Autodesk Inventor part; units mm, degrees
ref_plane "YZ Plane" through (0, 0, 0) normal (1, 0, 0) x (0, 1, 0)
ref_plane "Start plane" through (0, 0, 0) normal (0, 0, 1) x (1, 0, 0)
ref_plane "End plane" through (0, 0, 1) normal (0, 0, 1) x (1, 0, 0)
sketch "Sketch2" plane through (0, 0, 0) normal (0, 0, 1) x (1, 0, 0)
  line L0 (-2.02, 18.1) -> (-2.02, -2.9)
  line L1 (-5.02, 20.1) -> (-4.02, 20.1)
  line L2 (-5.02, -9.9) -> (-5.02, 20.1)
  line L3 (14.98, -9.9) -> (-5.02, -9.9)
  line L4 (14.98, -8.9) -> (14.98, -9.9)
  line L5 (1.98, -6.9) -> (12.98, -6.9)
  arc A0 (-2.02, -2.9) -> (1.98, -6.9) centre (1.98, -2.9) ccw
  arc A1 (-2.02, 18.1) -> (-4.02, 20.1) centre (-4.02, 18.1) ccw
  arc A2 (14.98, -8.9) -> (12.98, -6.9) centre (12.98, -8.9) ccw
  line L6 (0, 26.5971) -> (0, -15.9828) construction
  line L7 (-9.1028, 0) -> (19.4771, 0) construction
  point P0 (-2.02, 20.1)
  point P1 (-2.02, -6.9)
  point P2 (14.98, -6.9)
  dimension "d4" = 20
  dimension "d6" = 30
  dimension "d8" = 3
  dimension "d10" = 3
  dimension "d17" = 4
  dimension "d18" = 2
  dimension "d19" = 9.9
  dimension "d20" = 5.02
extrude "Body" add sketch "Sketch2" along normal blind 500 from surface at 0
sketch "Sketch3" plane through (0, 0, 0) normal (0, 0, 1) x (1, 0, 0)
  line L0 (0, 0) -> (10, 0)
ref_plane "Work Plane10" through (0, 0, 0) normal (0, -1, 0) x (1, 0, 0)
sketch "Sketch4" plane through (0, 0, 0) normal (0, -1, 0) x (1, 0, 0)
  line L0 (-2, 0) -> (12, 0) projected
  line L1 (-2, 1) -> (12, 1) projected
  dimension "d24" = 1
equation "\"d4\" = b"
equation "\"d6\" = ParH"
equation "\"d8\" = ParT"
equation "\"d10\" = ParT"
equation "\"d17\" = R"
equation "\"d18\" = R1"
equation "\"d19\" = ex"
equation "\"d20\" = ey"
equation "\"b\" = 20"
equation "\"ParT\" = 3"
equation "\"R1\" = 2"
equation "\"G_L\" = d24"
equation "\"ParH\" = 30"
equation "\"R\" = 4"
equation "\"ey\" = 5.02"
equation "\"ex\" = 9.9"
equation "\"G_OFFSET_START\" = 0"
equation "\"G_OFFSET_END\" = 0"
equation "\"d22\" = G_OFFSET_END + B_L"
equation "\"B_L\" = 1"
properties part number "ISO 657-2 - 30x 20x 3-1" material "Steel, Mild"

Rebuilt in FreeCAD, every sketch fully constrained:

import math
import FreeCAD as App
import Part
import Sketcher

V = App.Vector

doc = App.newDocument("Part")
body = doc.addObject("PartDesign::Body", "Body")

# Sketch on XY plane
sketch1 = body.newObject("Sketcher::SketchObject", "Sketch")
sketch1.AttachmentSupport = (doc.getObject("XY_Plane"), [""])
sketch1.MapMode = "FlatFace"
sketch1.addGeometry([
    Part.LineSegment(V(-2, -2.9, 0), V(-2, 18.1, 0)),  # 0
    Part.ArcOfCircle(Part.Circle(V(-4, 18.1, 0), V(0, 0, 1), 2), math.radians(0), math.radians(90)),  # 1
    Part.LineSegment(V(-4, 20.1, 0), V(-5, 20.1, 0)),  # 2
    Part.LineSegment(V(-5, 20.1, 0), V(-5, -9.9, 0)),  # 3
    Part.LineSegment(V(-5, -9.9, 0), V(15, -9.9, 0)),  # 4
    Part.LineSegment(V(15, -9.9, 0), V(15, -8.9, 0)),  # 5
    Part.ArcOfCircle(Part.Circle(V(13, -8.9, 0), V(0, 0, 1), 2), math.radians(0), math.radians(90)),  # 6
    Part.LineSegment(V(13, -6.9, 0), V(2, -6.9, 0)),  # 7
    Part.ArcOfCircle(Part.Circle(V(2, -2.9, 0), V(0, 0, 1), 4), math.radians(180), math.radians(270)),  # 8
], False)
sketch1.addConstraint([
    Sketcher.Constraint("Tangent", 0, 2, 1, 1),
    Sketcher.Constraint("Tangent", 1, 2, 2, 1),
    Sketcher.Constraint("Coincident", 2, 2, 3, 1),
    Sketcher.Constraint("Coincident", 3, 2, 4, 1),
    Sketcher.Constraint("Coincident", 4, 2, 5, 1),
    Sketcher.Constraint("Tangent", 5, 2, 6, 1),
    Sketcher.Constraint("Tangent", 6, 2, 7, 1),
    Sketcher.Constraint("Tangent", 7, 2, 8, 2),
    Sketcher.Constraint("Tangent", 8, 1, 0, 1),
    Sketcher.Constraint("Vertical", 0),
    Sketcher.Constraint("Horizontal", 2),
    Sketcher.Constraint("Vertical", 3),
    Sketcher.Constraint("Horizontal", 4),
    Sketcher.Constraint("Vertical", 5),
    Sketcher.Constraint("Horizontal", 7),
    Sketcher.Constraint("Equal", 1, 6),
    Sketcher.Constraint("Equal", 2, 5),
    Sketcher.Constraint("Radius", 1, 2.0),
    Sketcher.Constraint("Radius", 8, 4.0),
    Sketcher.Constraint("DistanceX", 4, 1, 4, 2, 20.0),
    Sketcher.Constraint("DistanceY", 3, 2, 3, 1, 30.0),
    Sketcher.Constraint("DistanceX", 2, 2, 0, 2, 3.0),
    Sketcher.Constraint("DistanceY", 3, 2, -1, 1, 9.9),
    Sketcher.Constraint("DistanceX", 2, 2, -1, 1, 5.02),
])
pad1 = body.newObject("PartDesign::Pad", "Pad")
pad1.Profile = sketch1
pad1.Length = 500

doc.recompute()
